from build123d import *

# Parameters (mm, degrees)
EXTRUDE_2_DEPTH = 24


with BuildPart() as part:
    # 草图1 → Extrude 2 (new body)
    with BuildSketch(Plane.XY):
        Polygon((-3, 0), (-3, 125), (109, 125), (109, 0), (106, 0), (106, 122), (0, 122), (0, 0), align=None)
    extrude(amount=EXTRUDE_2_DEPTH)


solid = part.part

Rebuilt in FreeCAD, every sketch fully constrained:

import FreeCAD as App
import Part
import Sketcher

V = App.Vector
Q = App.Units.Quantity

doc = App.newDocument("Part")
body = doc.addObject("PartDesign::Body", "Body")

# Sketch on XY plane
sketch1 = body.newObject("Sketcher::SketchObject", "Sketch")
sketch1.AttachmentSupport = (doc.getObject("XY_Plane"), [""])
sketch1.MapMode = "FlatFace"
sketch1.addGeometry(Part.LineSegment(V(-3, 125, 0), V(-3, 0, 0)), False)
sketch1.addGeometry(Part.LineSegment(V(-3, 0, 0), V(0, 0, 0)), False)
sketch1.addGeometry(Part.LineSegment(V(0, 0, 0), V(0, 122, 0)), False)
sketch1.addGeometry(Part.LineSegment(V(0, 122, 0), V(106, 122, 0)), False)
sketch1.addGeometry(Part.LineSegment(V(106, 122, 0), V(106, 0, 0)), False)
sketch1.addGeometry(Part.LineSegment(V(106, 0, 0), V(109, 0, 0)), False)
sketch1.addGeometry(Part.LineSegment(V(109, 0, 0), V(109, 125, 0)), False)
sketch1.addGeometry(Part.LineSegment(V(109, 125, 0), V(-3, 125, 0)), False)
sketch1.addConstraint(Sketcher.Constraint("Coincident", 0, 2, 1, 1))
sketch1.addConstraint(Sketcher.Constraint("Coincident", 1, 2, 2, 1))
sketch1.addConstraint(Sketcher.Constraint("Coincident", 2, 2, 3, 1))
sketch1.addConstraint(Sketcher.Constraint("Coincident", 3, 2, 4, 1))
sketch1.addConstraint(Sketcher.Constraint("Coincident", 4, 2, 5, 1))
sketch1.addConstraint(Sketcher.Constraint("Coincident", 5, 2, 6, 1))
sketch1.addConstraint(Sketcher.Constraint("Coincident", 6, 2, 7, 1))
sketch1.addConstraint(Sketcher.Constraint("Coincident", 7, 2, 0, 1))
sketch1.addConstraint(Sketcher.Constraint("Vertical", 0))
sketch1.addConstraint(Sketcher.Constraint("Horizontal", 1))
sketch1.addConstraint(Sketcher.Constraint("Vertical", 2))
sketch1.addConstraint(Sketcher.Constraint("Horizontal", 3))
sketch1.addConstraint(Sketcher.Constraint("Vertical", 4))
sketch1.addConstraint(Sketcher.Constraint("Horizontal", 5))
sketch1.addConstraint(Sketcher.Constraint("Vertical", 6))
sketch1.addConstraint(Sketcher.Constraint("Horizontal", 7))
sketch1.addConstraint(Sketcher.Constraint("Coincident", 1, 2, -1, 1))
sketch1.addConstraint(Sketcher.Constraint("PointOnObject", 4, 2, -1))
sketch1.addConstraint(Sketcher.Constraint("Equal", 1, 5))
sketch1.addConstraint(Sketcher.Constraint("DistanceX", 1, 1, 1, 2, Q("3 mm")))
sketch1.addConstraint(Sketcher.Constraint("DistanceX", 3, 1, 3, 2, Q("106 mm")))
sketch1.addConstraint(Sketcher.Constraint("DistanceY", 0, 2, 0, 1, Q("125 mm")))
sketch1.addConstraint(Sketcher.Constraint("DistanceY", 2, 1, 2, 2, Q("122 mm")))
pad1 = body.newObject("PartDesign::Pad", "Pad")
pad1.Profile = sketch1
pad1.Length = 24

doc.recompute()
